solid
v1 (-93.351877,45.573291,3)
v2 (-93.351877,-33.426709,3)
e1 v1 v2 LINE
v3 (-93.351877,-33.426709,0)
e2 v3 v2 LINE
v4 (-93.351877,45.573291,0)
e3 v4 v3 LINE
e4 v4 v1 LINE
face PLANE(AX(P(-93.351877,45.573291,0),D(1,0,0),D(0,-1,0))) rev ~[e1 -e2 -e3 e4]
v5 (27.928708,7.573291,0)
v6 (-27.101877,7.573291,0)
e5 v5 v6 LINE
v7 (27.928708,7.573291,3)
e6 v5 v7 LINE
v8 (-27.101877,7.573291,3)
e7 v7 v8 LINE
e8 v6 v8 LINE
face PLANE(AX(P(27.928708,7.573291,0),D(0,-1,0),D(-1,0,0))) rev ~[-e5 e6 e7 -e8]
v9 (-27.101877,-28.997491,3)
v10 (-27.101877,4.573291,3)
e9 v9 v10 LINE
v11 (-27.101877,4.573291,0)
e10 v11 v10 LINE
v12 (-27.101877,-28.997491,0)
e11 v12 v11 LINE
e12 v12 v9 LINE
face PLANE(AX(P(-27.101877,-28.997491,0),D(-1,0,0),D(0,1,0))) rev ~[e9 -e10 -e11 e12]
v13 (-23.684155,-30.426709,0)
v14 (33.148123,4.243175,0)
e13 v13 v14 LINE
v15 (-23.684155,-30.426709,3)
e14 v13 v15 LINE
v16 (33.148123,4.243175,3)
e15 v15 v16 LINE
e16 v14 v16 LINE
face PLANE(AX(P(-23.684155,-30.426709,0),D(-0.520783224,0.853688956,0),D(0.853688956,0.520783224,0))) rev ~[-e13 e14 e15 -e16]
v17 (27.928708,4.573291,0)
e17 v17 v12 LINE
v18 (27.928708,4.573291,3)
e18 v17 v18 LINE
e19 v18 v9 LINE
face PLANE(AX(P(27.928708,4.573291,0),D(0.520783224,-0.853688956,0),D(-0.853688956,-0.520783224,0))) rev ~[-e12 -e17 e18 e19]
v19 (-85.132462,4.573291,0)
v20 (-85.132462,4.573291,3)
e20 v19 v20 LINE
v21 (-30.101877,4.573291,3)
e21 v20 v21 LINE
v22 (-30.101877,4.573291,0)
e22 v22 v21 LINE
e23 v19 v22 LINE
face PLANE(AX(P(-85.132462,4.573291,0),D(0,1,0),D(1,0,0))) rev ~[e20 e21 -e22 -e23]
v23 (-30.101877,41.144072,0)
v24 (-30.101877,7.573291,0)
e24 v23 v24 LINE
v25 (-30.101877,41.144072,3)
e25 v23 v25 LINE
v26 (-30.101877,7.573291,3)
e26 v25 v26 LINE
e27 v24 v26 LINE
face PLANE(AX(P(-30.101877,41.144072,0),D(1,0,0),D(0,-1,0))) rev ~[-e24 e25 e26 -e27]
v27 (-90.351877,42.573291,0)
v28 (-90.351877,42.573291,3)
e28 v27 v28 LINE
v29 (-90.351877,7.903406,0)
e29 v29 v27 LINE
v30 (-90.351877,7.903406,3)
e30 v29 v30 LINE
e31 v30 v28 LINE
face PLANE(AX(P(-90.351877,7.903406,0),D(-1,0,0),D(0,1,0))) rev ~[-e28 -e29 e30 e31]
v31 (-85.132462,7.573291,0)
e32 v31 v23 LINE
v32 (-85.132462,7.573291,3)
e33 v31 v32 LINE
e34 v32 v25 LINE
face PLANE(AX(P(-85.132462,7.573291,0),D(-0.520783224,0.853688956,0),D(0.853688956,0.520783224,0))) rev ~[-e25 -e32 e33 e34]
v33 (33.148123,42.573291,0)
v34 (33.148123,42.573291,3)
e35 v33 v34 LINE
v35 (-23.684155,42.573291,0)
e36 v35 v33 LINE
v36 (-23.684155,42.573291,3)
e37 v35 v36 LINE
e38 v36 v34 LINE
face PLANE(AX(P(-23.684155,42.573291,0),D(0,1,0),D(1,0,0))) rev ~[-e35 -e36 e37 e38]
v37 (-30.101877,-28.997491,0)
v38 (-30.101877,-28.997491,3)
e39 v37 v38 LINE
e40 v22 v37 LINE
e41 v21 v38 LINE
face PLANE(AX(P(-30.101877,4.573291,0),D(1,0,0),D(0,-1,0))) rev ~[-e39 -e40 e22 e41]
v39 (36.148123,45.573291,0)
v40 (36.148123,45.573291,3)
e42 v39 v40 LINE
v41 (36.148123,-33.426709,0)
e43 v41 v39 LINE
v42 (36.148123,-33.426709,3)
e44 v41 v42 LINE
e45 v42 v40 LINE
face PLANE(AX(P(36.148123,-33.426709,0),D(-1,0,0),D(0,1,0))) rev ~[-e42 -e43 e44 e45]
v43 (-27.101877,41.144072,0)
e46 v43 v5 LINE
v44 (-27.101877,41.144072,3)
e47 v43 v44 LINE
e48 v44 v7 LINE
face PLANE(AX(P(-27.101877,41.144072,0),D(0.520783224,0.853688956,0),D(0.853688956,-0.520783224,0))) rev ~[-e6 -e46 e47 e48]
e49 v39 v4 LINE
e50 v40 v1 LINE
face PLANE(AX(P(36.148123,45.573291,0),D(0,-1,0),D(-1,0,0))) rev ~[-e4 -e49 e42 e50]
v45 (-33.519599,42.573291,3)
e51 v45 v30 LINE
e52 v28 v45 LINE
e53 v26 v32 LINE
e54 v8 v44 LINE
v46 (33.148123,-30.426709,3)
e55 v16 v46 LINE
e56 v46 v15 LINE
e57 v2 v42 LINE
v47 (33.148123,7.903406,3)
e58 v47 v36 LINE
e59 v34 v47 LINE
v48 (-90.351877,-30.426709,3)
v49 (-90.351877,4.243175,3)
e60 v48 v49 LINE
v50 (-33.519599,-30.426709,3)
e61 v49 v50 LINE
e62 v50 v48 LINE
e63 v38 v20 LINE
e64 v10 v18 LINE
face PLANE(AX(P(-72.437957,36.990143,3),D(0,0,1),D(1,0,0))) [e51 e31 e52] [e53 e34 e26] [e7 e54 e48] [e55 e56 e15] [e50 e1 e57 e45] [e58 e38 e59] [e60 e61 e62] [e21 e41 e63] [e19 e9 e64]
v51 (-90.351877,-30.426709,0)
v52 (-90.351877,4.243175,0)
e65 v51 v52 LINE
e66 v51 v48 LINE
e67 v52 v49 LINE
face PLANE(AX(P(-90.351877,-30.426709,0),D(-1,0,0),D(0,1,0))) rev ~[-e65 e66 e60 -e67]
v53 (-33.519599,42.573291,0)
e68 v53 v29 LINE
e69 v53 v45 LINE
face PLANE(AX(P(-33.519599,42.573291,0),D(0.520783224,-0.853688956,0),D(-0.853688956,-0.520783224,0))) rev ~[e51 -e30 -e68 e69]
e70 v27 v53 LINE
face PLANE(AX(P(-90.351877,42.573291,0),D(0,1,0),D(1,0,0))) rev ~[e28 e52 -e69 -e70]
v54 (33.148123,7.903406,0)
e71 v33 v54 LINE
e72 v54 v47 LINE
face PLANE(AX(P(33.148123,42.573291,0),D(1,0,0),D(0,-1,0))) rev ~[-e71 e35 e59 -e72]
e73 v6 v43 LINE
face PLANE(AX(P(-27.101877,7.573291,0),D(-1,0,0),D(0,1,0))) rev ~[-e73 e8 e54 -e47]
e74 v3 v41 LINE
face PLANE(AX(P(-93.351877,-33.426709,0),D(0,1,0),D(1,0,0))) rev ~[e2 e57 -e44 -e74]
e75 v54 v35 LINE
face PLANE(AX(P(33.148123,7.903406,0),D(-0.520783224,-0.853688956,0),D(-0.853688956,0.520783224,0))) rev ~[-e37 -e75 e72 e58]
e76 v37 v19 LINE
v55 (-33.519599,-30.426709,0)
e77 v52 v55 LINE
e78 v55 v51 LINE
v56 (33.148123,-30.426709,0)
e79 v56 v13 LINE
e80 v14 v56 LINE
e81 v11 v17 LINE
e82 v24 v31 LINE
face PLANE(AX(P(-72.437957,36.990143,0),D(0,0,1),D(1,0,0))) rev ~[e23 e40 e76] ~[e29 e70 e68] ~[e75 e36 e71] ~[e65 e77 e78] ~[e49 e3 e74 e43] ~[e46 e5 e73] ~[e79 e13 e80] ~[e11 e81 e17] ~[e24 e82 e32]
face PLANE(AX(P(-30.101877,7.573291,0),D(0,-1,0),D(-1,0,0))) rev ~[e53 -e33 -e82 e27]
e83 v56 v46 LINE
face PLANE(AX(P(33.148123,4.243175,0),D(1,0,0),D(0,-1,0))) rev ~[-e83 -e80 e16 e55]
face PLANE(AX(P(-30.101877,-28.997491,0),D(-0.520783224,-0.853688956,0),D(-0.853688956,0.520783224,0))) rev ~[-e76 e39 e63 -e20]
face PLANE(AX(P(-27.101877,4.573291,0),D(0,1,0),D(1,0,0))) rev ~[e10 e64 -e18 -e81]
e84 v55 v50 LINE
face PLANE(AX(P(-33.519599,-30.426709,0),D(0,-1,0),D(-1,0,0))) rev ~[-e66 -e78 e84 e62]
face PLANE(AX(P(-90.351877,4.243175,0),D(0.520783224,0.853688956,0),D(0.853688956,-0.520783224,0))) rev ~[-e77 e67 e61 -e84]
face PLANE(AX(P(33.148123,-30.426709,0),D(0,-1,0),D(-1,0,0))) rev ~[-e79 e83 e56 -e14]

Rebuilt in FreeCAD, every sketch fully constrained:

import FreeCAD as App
import Part
import Sketcher
from FreeCAD import Vector

doc = App.newDocument("Part")
body = doc.addObject("PartDesign::Body", "Body")

# Sketch on XY plane
sketch1 = body.newObject("Sketcher::SketchObject", "Sketch")
sketch1.AttachmentSupport = (doc.getObject("XY_Plane"), [""])
sketch1.MapMode = "FlatFace"
sketch1.addGeometry([
    Part.LineSegment(Vector(-93, -33, 0), Vector(36, -33, 0)),  # 0
    Part.LineSegment(Vector(36, -33, 0), Vector(36, 46, 0)),  # 1
    Part.LineSegment(Vector(36, 46, 0), Vector(-93, 46, 0)),  # 2
    Part.LineSegment(Vector(-93, 46, 0), Vector(-93, -33, 0)),  # 3
    Part.LineSegment(Vector(-90, -30, 0), Vector(-90, 4, 0)),  # 4
    Part.LineSegment(Vector(-90, 4, 0), Vector(-34, -30, 0)),  # 5
    Part.LineSegment(Vector(-34, -30, 0), Vector(-90, -30, 0)),  # 6
    Part.LineSegment(Vector(-30, -29, 0), Vector(-85, 5, 0)),  # 7
    Part.LineSegment(Vector(-85, 5, 0), Vector(-30, 5, 0)),  # 8
    Part.LineSegment(Vector(-30, 5, 0), Vector(-30, -29, 0)),  # 9
    Part.LineSegment(Vector(28, 5, 0), Vector(-27, -29, 0)),  # 10
    Part.LineSegment(Vector(-27, -29, 0), Vector(-27, 5, 0)),  # 11
    Part.LineSegment(Vector(-27, 5, 0), Vector(28, 5, 0)),  # 12
    Part.LineSegment(Vector(33, -30, 0), Vector(-24, -30, 0)),  # 13
    Part.LineSegment(Vector(-24, -30, 0), Vector(33, 4, 0)),  # 14
    Part.LineSegment(Vector(33, 4, 0), Vector(33, -30, 0)),  # 15
    Part.LineSegment(Vector(-34, 43, 0), Vector(-90, 8, 0)),  # 16
    Part.LineSegment(Vector(-90, 8, 0), Vector(-90, 43, 0)),  # 17
    Part.LineSegment(Vector(-90, 43, 0), Vector(-34, 43, 0)),  # 18
    Part.LineSegment(Vector(-30, 8, 0), Vector(-85, 8, 0)),  # 19
    Part.LineSegment(Vector(-85, 8, 0), Vector(-30, 41, 0)),  # 20
    Part.LineSegment(Vector(-30, 41, 0), Vector(-30, 8, 0)),  # 21
    Part.LineSegment(Vector(-27, 41, 0), Vector(28, 8, 0)),  # 22
    Part.LineSegment(Vector(28, 8, 0), Vector(-27, 8, 0)),  # 23
    Part.LineSegment(Vector(-27, 8, 0), Vector(-27, 41, 0)),  # 24
    Part.LineSegment(Vector(33, 43, 0), Vector(33, 8, 0)),  # 25
    Part.LineSegment(Vector(33, 8, 0), Vector(-24, 43, 0)),  # 26
    Part.LineSegment(Vector(-24, 43, 0), Vector(33, 43, 0)),  # 27
], False)
sketch1.addConstraint([
    Sketcher.Constraint("Coincident", 0, 2, 1, 1),
    Sketcher.Constraint("Coincident", 1, 2, 2, 1),
    Sketcher.Constraint("Coincident", 2, 2, 3, 1),
    Sketcher.Constraint("Coincident", 3, 2, 0, 1),
    Sketcher.Constraint("Coincident", 4, 2, 5, 1),
    Sketcher.Constraint("Coincident", 5, 2, 6, 1),
    Sketcher.Constraint("Coincident", 6, 2, 4, 1),
    Sketcher.Constraint("Coincident", 7, 2, 8, 1),
    Sketcher.Constraint("Coincident", 8, 2, 9, 1),
    Sketcher.Constraint("Coincident", 9, 2, 7, 1),
    Sketcher.Constraint("Coincident", 10, 2, 11, 1),
    Sketcher.Constraint("Coincident", 11, 2, 12, 1),
    Sketcher.Constraint("Coincident", 12, 2, 10, 1),
    Sketcher.Constraint("Coincident", 13, 2, 14, 1),
    Sketcher.Constraint("Coincident", 14, 2, 15, 1),
    Sketcher.Constraint("Coincident", 15, 2, 13, 1),
    Sketcher.Constraint("Coincident", 16, 2, 17, 1),
    Sketcher.Constraint("Coincident", 17, 2, 18, 1),
    Sketcher.Constraint("Coincident", 18, 2, 16, 1),
    Sketcher.Constraint("Coincident", 19, 2, 20, 1),
    Sketcher.Constraint("Coincident", 20, 2, 21, 1),
    Sketcher.Constraint("Coincident", 21, 2, 19, 1),
    Sketcher.Constraint("Coincident", 22, 2, 23, 1),
    Sketcher.Constraint("Coincident", 23, 2, 24, 1),
    Sketcher.Constraint("Coincident", 24, 2, 22, 1),
    Sketcher.Constraint("Coincident", 25, 2, 26, 1),
    Sketcher.Constraint("Coincident", 26, 2, 27, 1),
    Sketcher.Constraint("Coincident", 27, 2, 25, 1),
    Sketcher.Constraint("Horizontal", 0),
    Sketcher.Constraint("Vertical", 1),
    Sketcher.Constraint("Horizontal", 2),
    Sketcher.Constraint("Vertical", 3),
    Sketcher.Constraint("Vertical", 4),
    Sketcher.Constraint("Horizontal", 6),
    Sketcher.Constraint("Horizontal", 8),
    Sketcher.Constraint("Vertical", 9),
    Sketcher.Constraint("Vertical", 11),
    Sketcher.Constraint("Horizontal", 12),
    Sketcher.Constraint("Horizontal", 13),
    Sketcher.Constraint("Vertical", 15),
    Sketcher.Constraint("Vertical", 17),
    Sketcher.Constraint("Horizontal", 18),
    Sketcher.Constraint("Horizontal", 19),
    Sketcher.Constraint("Vertical", 21),
    Sketcher.Constraint("Horizontal", 23),
    Sketcher.Constraint("Vertical", 24),
    Sketcher.Constraint("Vertical", 25),
    Sketcher.Constraint("Horizontal", 27),
    Sketcher.Constraint("Parallel", 5, 7),
    Sketcher.Constraint("Parallel", 10, 14),
    Sketcher.Constraint("Parallel", 14, 16),
    Sketcher.Constraint("Parallel", 16, 20),
    Sketcher.Constraint("Parallel", 7, 22),
    Sketcher.Constraint("Parallel", 22, 26),
    Sketcher.Constraint("Horizontal", 9, 2, 10, 2),
    Sketcher.Constraint("Horizontal", 8, 2, 11, 2),
    Sketcher.Constraint("Horizontal", 6, 2, 13, 2),
    Sketcher.Constraint("Horizontal", 4, 2, 14, 2),
    Sketcher.Constraint("Horizontal", 21, 2, 22, 2),
    Sketcher.Constraint("Horizontal", 20, 2, 24, 2),
    Sketcher.Constraint("Horizontal", 16, 2, 25, 2),
    Sketcher.Constraint("Horizontal", 18, 2, 26, 2),
    Sketcher.Constraint("Vertical", 6, 2, 16, 2),
    Sketcher.Constraint("Vertical", 5, 2, 18, 2),
    Sketcher.Constraint("Vertical", 7, 2, 19, 2),
    Sketcher.Constraint("Vertical", 9, 2, 20, 2),
    Sketcher.Constraint("Vertical", 12, 2, 22, 2),
    Sketcher.Constraint("Vertical", 11, 2, 23, 2),
    Sketcher.Constraint("Vertical", 15, 2, 25, 2),
    Sketcher.Constraint("DistanceY", 1, 1, 1, 2, 79.0),
    Sketcher.Constraint("DistanceX", 0, 1, 0, 2, 129.5),
    Sketcher.Constraint("DistanceX", 3, 2, 4, 2, 3.0),
    Sketcher.Constraint("DistanceY", 3, 2, 5, 2, 3.0),
    Sketcher.Constraint("DistanceY", 6, 2, 7, 2, 35.0),
    Sketcher.Constraint("DistanceX", 9, 2, 10, 2, 3.0),
    Sketcher.Constraint("DistanceX", 14, 2, 0, 2, 3.0),
    Sketcher.Constraint("DistanceY", 17, 2, 2, 2, 3.0),
    Sketcher.Constraint("DistanceY", 7, 2, 19, 2, 3.0),
    Sketcher.Constraint("DistanceX", 4, 2, 8, 2, 60.25),
    Sketcher.Constraint("DistanceX", 6, 2, 6, 1, 56.832278),
    Sketcher.Constraint("DistanceY", 9, 2, 9, 1, 33.570782),
    Sketcher.Constraint("DistanceX", 5, 2, -1, 1, 33.519599),
    Sketcher.Constraint("DistanceX", 8, 1, 8, 2, 55.030585),
    Sketcher.Constraint("DistanceY", 0, 2, -1, 1, 33.426709),
])
pad1 = body.newObject("PartDesign::Pad", "Pad")
pad1.Profile = sketch1
pad1.Length = 3

doc.recompute()
